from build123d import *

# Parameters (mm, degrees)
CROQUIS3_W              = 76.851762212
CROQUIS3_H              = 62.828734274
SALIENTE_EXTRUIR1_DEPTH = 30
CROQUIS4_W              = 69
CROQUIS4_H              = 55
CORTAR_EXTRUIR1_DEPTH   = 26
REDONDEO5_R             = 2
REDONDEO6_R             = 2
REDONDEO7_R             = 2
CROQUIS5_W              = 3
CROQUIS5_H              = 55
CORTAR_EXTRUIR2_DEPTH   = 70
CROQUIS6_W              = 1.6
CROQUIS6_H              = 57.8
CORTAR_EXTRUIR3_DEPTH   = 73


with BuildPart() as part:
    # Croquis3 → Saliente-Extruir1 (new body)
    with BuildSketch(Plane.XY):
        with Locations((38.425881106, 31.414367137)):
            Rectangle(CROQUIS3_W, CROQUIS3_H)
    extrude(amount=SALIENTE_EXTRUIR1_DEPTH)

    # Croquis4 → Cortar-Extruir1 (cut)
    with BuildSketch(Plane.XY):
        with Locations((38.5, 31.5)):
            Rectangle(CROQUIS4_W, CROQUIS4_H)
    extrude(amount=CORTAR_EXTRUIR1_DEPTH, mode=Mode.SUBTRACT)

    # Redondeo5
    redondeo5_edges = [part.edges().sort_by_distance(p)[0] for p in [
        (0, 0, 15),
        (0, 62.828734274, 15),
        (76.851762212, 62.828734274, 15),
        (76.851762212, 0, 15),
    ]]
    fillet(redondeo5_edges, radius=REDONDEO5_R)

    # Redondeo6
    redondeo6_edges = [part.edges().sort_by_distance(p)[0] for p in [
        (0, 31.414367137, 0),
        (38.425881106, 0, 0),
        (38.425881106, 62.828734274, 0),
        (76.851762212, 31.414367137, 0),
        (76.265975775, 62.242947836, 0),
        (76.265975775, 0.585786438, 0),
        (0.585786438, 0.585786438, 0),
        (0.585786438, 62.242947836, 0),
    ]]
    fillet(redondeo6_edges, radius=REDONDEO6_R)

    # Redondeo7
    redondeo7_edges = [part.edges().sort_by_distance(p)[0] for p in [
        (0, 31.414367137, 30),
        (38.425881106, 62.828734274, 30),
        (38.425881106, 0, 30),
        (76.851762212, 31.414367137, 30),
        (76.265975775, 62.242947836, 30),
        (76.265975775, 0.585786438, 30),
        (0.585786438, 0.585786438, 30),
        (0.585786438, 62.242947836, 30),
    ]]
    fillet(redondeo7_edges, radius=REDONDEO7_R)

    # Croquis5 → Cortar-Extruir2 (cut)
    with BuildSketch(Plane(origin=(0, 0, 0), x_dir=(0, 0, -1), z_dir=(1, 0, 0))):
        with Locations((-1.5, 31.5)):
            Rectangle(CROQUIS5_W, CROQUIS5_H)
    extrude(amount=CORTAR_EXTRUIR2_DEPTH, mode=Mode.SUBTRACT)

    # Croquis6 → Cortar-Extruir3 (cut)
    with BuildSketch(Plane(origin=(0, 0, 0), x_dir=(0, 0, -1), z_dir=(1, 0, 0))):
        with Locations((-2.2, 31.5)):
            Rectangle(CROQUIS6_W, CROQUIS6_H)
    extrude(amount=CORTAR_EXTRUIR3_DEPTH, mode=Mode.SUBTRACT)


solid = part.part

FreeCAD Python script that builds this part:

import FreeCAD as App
import Part
import Sketcher


def edges_at(feature, points):
    """Names of the edges that pass closest to the given points."""
    edges = feature.Shape.Edges
    near = lambda p: min(range(len(edges)), key=lambda i: edges[i].distToShape(Part.Vertex(*p))[0])
    return sorted({f"Edge{near(p) + 1}" for p in points})


def add_polygon(sketch, points):
    """Adds a closed chain of lines whose ends are joined by coincident constraints."""
    first, n = sketch.GeometryCount, len(points)
    for a, b in zip(points, points[1:] + points[:1]):
        sketch.addGeometry(Part.LineSegment(App.Vector(*a, 0), App.Vector(*b, 0)), False)
    for i in range(n):
        sketch.addConstraint(Sketcher.Constraint("Coincident", first + i, 2, first + (i + 1) % n, 1))

doc = App.newDocument("Part")
body = doc.addObject("PartDesign::Body", "Body")

# Sketch on XY plane
sketch1 = doc.addObject("Sketcher::SketchObject", "Sketch")
body.addObject(sketch1)
sketch1.AttachmentSupport = (doc.XY_Plane, [""])
sketch1.MapMode = "FlatFace"
add_polygon(sketch1, [(0, 63), (0, 0), (77, 0), (77, 63)])  # lines 0-3
sketch1.addConstraint([
    Sketcher.Constraint("Vertical", 0),
    Sketcher.Constraint("Horizontal", 1),
    Sketcher.Constraint("Vertical", 2),
    Sketcher.Constraint("Horizontal", 3),
    Sketcher.Constraint("Coincident", 0, 2, -1, 1),
    Sketcher.Constraint("DistanceX", 1, 1, 1, 2, 76.851762),
    Sketcher.Constraint("DistanceY", 0, 2, 0, 1, 62.828734),
])
pad1 = doc.addObject("PartDesign::Pad", "Pad")
body.addObject(pad1)
pad1.Profile = sketch1
pad1.Length = 30

# Sketch on XY plane
sketch2 = doc.addObject("Sketcher::SketchObject", "Sketch001")
body.addObject(sketch2)
sketch2.AttachmentSupport = (doc.XY_Plane, [""])
sketch2.MapMode = "FlatFace"
add_polygon(sketch2, [(4, 59), (4, 4), (73, 4), (73, 59)])  # lines 0-3
sketch2.addConstraint([
    Sketcher.Constraint("Vertical", 0),
    Sketcher.Constraint("Horizontal", 1),
    Sketcher.Constraint("Vertical", 2),
    Sketcher.Constraint("Horizontal", 3),
    Sketcher.Constraint("DistanceX", 1, 1, 1, 2, 69.0),
    Sketcher.Constraint("DistanceY", 0, 2, 0, 1, 55.0),
    Sketcher.Constraint("DistanceX", -1, 1, 0, 2, 4.0),
    Sketcher.Constraint("DistanceY", -1, 1, 0, 2, 4.0),
])
pocket1 = doc.addObject("PartDesign::Pocket", "Pocket")
body.addObject(pocket1)
pocket1.Profile = sketch2
pocket1.Length = 26
pocket1.Reversed = True
doc.recompute()

fillet = doc.addObject("PartDesign::Fillet", "Fillet")
body.addObject(fillet)
fillet.Base = (pocket1, edges_at(pocket1, [
    (0, 0, 15),
    (0, 62.829, 15),
    (76.852, 62.829, 15),
    (76.852, 0, 15),
]))
fillet.Radius = 2
doc.recompute()

fillet2 = doc.addObject("PartDesign::Fillet", "Fillet001")
body.addObject(fillet2)
fillet2.Base = (fillet, edges_at(fillet, [
    (0, 31.414, 0),
    (38.426, 0, 0),
    (38.426, 62.829, 0),
    (76.852, 31.414, 0),
    (76.266, 62.243, 0),
    (76.266, 0.586, 0),
    (0.586, 0.586, 0),
    (0.586, 62.243, 0),
]))
fillet2.Radius = 2
doc.recompute()

fillet3 = doc.addObject("PartDesign::Fillet", "Fillet002")
body.addObject(fillet3)
fillet3.Base = (fillet2, edges_at(fillet2, [
    (0, 31.414, 30),
    (38.426, 62.829, 30),
    (38.426, 0, 30),
    (76.852, 31.414, 30),
    (76.266, 62.243, 30),
    (76.266, 0.586, 30),
    (0.586, 0.586, 30),
    (0.586, 62.243, 30),
]))
fillet3.Radius = 2

# Sketch on YZ plane
sketch3 = doc.addObject("Sketcher::SketchObject", "Sketch002")
body.addObject(sketch3)
sketch3.AttachmentSupport = (doc.YZ_Plane, [""])
sketch3.MapMode = "FlatFace"
add_polygon(sketch3, [(59, 3), (4, 3), (4, 0), (59, 0)])  # lines 0-3
sketch3.addConstraint([
    Sketcher.Constraint("Horizontal", 0),
    Sketcher.Constraint("Vertical", 1),
    Sketcher.Constraint("Horizontal", 2),
    Sketcher.Constraint("Vertical", 3),
    Sketcher.Constraint("PointOnObject", 1, 2, -1),
    Sketcher.Constraint("DistanceX", 0, 2, 0, 1, 55.0),
    Sketcher.Constraint("DistanceY", 1, 2, 1, 1, 3.0),
    Sketcher.Constraint("DistanceX", -1, 1, 0, 2, 4.0),
])
pocket2 = doc.addObject("PartDesign::Pocket", "Pocket001")
body.addObject(pocket2)
pocket2.Profile = sketch3
pocket2.Length = 70
pocket2.Reversed = True

# Sketch on YZ plane
sketch4 = doc.addObject("Sketcher::SketchObject", "Sketch003")
body.addObject(sketch4)
sketch4.AttachmentSupport = (doc.YZ_Plane, [""])
sketch4.MapMode = "FlatFace"
add_polygon(sketch4, [(60.4, 3), (2.6, 3), (2.6, 1.4), (60.4, 1.4)])  # lines 0-3
sketch4.addConstraint([
    Sketcher.Constraint("Horizontal", 0),
    Sketcher.Constraint("Vertical", 1),
    Sketcher.Constraint("Horizontal", 2),
    Sketcher.Constraint("Vertical", 3),
    Sketcher.Constraint("DistanceX", 0, 2, 0, 1, 57.8),
    Sketcher.Constraint("DistanceY", 1, 2, 1, 1, 1.6),
    Sketcher.Constraint("DistanceY", -1, 1, 0, 2, 3.0),
    Sketcher.Constraint("DistanceX", -1, 1, 0, 2, 2.6),
])
pocket3 = doc.addObject("PartDesign::Pocket", "Pocket002")
body.addObject(pocket3)
pocket3.Profile = sketch4
pocket3.Length = 73
pocket3.Reversed = True

doc.recompute()
